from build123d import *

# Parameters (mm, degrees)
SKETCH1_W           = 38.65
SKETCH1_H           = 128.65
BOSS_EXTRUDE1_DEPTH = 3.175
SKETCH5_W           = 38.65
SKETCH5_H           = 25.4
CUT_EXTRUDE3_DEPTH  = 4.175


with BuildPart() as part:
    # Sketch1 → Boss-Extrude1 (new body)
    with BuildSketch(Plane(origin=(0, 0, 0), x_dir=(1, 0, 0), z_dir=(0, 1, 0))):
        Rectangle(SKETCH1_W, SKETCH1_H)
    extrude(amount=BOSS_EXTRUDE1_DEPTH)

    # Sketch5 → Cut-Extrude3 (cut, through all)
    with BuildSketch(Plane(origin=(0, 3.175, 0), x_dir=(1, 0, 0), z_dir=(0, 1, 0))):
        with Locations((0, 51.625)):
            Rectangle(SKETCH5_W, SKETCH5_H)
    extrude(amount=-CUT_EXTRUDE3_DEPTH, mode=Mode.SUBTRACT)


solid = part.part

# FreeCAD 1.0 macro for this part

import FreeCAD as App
import Part
import Sketcher

V = App.Vector
Q = App.Units.Quantity

doc = App.newDocument("Part")
body = doc.addObject("PartDesign::Body", "Body")

sketch1 = body.newObject("Sketcher::SketchObject", "Sketch")
sketch1.AttachmentSupport = (doc.getObject("XZ_Plane"), [""])
sketch1.MapMode = "FlatFace"
sketch1.addGeometry([
    Part.LineSegment(V(-19, -64, 0), V(-19, 64, 0)),
    Part.LineSegment(V(-19, 64, 0), V(19, 64, 0)),
    Part.LineSegment(V(19, 64, 0), V(19, -64, 0)),
    Part.LineSegment(V(19, -64, 0), V(-19, -64, 0)),
], False)
sketch1.addConstraint([
    Sketcher.Constraint("Coincident", 0, 2, 1, 1),
    Sketcher.Constraint("Coincident", 1, 2, 2, 1),
    Sketcher.Constraint("Coincident", 2, 2, 3, 1),
    Sketcher.Constraint("Coincident", 3, 2, 0, 1),
    Sketcher.Constraint("Vertical", 0),
    Sketcher.Constraint("Horizontal", 1),
    Sketcher.Constraint("Vertical", 2),
    Sketcher.Constraint("Horizontal", 3),
    Sketcher.Constraint("Symmetric", 0, 2, 2, 2, -1, 1),
    Sketcher.Constraint("DistanceX", 1, 1, 1, 2, 38.65),
    Sketcher.Constraint("DistanceY", 0, 1, 0, 2, 128.65),
])
pad1 = body.newObject("PartDesign::Pad", "Pad")
pad1.Profile = sketch1
pad1.Length = Q("0.125 in")
pad1.Reversed = True

sketch2 = body.newObject("Sketcher::SketchObject", "Sketch001")
sketch2.AttachmentSupport = (doc.getObject("XZ_Plane"), [""])
sketch2.MapMode = "FlatFace"
sketch2.AttachmentOffset = App.Placement(V(0, 0, -0.125 * 25.4), App.Rotation())
sketch2.addGeometry([
    Part.LineSegment(V(-19, -64, 0), V(-19, -39, 0)),
    Part.LineSegment(V(-19, -39, 0), V(19, -39, 0)),
    Part.LineSegment(V(19, -39, 0), V(19, -64, 0)),
    Part.LineSegment(V(19, -64, 0), V(-19, -64, 0)),
], False)
sketch2.addConstraint([
    Sketcher.Constraint("Coincident", 0, 2, 1, 1),
    Sketcher.Constraint("Coincident", 1, 2, 2, 1),
    Sketcher.Constraint("Coincident", 2, 2, 3, 1),
    Sketcher.Constraint("Coincident", 3, 2, 0, 1),
    Sketcher.Constraint("Vertical", 0),
    Sketcher.Constraint("Horizontal", 1),
    Sketcher.Constraint("Vertical", 2),
    Sketcher.Constraint("Horizontal", 3),
    Sketcher.Constraint("DistanceY", 0, 1, 0, 2, Q("1 in")),
    Sketcher.Constraint("DistanceX", 1, 1, 1, 2, 38.65),
    Sketcher.Constraint("DistanceX", 0, 2, -1, 1, 19.325),
    Sketcher.Constraint("DistanceY", 0, 2, -1, 1, 38.925),
])
pocket1 = body.newObject("PartDesign::Pocket", "Pocket")
pocket1.Profile = sketch2
pocket1.Type = "ThroughAll"
pocket1.Reversed = True

doc.recompute()
